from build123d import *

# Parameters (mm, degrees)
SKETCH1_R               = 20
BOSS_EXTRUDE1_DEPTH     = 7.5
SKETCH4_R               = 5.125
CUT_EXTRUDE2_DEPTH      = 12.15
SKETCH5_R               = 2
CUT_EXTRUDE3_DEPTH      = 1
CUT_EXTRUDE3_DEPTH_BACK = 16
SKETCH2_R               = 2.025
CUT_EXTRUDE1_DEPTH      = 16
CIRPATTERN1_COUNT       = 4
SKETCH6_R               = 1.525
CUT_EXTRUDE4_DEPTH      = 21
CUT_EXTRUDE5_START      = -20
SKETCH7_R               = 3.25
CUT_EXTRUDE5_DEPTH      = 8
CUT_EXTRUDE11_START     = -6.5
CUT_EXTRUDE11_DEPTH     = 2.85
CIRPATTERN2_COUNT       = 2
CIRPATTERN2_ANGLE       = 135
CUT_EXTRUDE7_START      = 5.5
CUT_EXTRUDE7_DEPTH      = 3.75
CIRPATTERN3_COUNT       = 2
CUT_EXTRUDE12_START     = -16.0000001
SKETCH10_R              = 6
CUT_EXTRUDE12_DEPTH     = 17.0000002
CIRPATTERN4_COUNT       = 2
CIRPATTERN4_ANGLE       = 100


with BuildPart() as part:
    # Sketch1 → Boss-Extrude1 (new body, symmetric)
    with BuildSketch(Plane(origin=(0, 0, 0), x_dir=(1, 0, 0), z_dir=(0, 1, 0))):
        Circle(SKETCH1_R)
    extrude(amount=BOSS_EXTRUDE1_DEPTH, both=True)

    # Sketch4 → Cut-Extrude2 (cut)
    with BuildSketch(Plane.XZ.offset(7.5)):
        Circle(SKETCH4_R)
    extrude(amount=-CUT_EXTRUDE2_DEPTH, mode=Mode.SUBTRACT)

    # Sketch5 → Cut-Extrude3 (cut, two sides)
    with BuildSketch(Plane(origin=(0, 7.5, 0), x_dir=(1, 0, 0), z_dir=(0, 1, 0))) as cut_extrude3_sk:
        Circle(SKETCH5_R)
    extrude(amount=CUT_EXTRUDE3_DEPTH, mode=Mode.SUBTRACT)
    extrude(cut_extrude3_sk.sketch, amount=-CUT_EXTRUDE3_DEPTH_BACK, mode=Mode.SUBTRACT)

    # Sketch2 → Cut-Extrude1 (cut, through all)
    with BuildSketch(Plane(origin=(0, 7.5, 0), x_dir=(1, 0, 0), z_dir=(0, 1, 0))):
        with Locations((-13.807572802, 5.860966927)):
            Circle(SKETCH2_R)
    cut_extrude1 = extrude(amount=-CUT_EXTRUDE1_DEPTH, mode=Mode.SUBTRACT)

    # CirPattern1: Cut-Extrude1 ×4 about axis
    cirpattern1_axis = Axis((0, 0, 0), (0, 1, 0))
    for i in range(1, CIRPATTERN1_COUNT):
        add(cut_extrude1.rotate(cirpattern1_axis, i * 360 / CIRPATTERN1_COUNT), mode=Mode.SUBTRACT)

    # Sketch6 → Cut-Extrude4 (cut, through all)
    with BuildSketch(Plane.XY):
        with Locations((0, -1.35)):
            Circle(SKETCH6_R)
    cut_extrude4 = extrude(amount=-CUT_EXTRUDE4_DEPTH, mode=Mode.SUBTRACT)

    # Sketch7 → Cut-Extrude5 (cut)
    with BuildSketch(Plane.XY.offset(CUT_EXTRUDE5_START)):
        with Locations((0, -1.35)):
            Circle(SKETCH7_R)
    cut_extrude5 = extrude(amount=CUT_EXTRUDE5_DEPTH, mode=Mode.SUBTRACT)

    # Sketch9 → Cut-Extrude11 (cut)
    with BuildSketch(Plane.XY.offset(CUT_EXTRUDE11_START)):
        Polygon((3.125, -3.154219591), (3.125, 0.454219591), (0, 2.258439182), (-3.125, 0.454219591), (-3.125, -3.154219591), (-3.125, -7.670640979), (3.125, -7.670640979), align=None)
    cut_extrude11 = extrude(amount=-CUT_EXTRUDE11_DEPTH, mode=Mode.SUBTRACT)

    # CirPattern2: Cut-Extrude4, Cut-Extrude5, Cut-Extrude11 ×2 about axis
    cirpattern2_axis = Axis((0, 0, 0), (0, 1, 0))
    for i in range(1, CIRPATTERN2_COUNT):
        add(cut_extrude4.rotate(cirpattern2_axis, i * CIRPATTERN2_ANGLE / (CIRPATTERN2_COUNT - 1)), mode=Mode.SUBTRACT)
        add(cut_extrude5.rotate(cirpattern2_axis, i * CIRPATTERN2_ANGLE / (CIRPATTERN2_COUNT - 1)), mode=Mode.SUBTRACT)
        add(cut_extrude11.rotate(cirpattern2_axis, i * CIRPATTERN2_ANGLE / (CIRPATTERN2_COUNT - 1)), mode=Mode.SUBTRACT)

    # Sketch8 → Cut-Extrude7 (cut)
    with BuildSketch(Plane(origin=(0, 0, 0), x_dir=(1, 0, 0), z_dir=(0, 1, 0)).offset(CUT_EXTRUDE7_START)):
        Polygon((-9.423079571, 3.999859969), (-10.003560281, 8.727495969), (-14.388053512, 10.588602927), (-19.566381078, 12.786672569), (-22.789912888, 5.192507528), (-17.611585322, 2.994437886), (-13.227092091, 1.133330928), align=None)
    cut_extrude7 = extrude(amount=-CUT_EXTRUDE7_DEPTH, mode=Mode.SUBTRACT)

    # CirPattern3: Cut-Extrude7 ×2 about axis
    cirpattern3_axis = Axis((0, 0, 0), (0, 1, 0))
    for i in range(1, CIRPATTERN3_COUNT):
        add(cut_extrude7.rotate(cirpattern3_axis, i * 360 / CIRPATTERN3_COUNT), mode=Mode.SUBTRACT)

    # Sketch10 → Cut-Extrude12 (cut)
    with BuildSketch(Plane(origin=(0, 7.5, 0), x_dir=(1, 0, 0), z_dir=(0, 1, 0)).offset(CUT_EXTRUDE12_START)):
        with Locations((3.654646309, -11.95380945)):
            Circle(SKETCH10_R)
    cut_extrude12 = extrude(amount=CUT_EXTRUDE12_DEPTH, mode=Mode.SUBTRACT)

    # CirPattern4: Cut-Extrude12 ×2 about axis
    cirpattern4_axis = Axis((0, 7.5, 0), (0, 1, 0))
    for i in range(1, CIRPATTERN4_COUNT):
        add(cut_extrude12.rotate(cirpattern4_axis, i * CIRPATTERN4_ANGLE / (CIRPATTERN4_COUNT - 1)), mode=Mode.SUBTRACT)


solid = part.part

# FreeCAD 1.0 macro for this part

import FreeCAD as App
import Part
import Sketcher
from FreeCAD import Vector
Q = App.Units.Quantity


def add_polygon(sketch, points):
    """Adds a closed chain of lines whose ends are joined by coincident constraints."""
    first, n = sketch.GeometryCount, len(points)
    for a, b in zip(points, points[1:] + points[:1]):
        sketch.addGeometry(Part.LineSegment(App.Vector(*a, 0), App.Vector(*b, 0)), False)
    for i in range(n):
        sketch.addConstraint(Sketcher.Constraint("Coincident", first + i, 2, first + (i + 1) % n, 1))

doc = App.newDocument("Part")
body = doc.addObject("PartDesign::Body", "Body")

sketch1 = doc.addObject("Sketcher::SketchObject", "Sketch")
body.addObject(sketch1)
sketch1.AttachmentSupport = (doc.XZ_Plane, [""])
sketch1.MapMode = "FlatFace"
sketch1.addGeometry(Part.Circle(Vector(0, 0, 0), Vector(0, 0, 1), 20), False)
sketch1.addConstraint([
    Sketcher.Constraint("Coincident", 0, 3, -1, 1),
    Sketcher.Constraint("Diameter", 0, Q("40 mm")),
])
pad1 = doc.addObject("PartDesign::Pad", "Pad")
body.addObject(pad1)
pad1.Profile = sketch1
pad1.Length = 15
pad1.Midplane = True

sketch2 = doc.addObject("Sketcher::SketchObject", "Sketch001")
body.addObject(sketch2)
sketch2.AttachmentSupport = (doc.XZ_Plane, [""])
sketch2.MapMode = "FlatFace"
sketch2.AttachmentOffset = App.Placement(Vector(0, 0, 7.5), App.Rotation())
sketch2.addGeometry(Part.Circle(Vector(0, 0, 0), Vector(0, 0, 1), 5.125), False)
sketch2.addConstraint([
    Sketcher.Constraint("Coincident", 0, 3, -1, 1),
    Sketcher.Constraint("Diameter", 0, Q("10.25 mm")),
])
pocket1 = doc.addObject("PartDesign::Pocket", "Pocket")
body.addObject(pocket1)
pocket1.Profile = sketch2
pocket1.Length = 12.15

sketch3 = doc.addObject("Sketcher::SketchObject", "Sketch002")
body.addObject(sketch3)
sketch3.AttachmentSupport = (doc.XZ_Plane, [""])
sketch3.MapMode = "FlatFace"
sketch3.AttachmentOffset = App.Placement(Vector(0, 0, -7.5), App.Rotation())
sketch3.addGeometry(Part.Circle(Vector(0, 0, 0), Vector(0, 0, 1), 2), False)
sketch3.addConstraint([
    Sketcher.Constraint("Coincident", 0, 3, -1, 1),
    Sketcher.Constraint("Diameter", 0, Q("4 mm")),
])
pocket2 = doc.addObject("PartDesign::Pocket", "Pocket001")
body.addObject(pocket2)
pocket2.Profile = sketch3
pocket2.Type = "ThroughAll"
pocket2.Midplane = True

sketch4 = doc.addObject("Sketcher::SketchObject", "Sketch003")
body.addObject(sketch4)
sketch4.AttachmentSupport = (doc.XZ_Plane, [""])
sketch4.MapMode = "FlatFace"
sketch4.AttachmentOffset = App.Placement(Vector(0, 0, -7.5), App.Rotation())
sketch4.addGeometry(Part.Circle(Vector(-13.807573, -5.860967, 0), Vector(0, 0, 1), 2.025), False)
sketch4.addConstraint([
    Sketcher.Constraint("Diameter", 0, Q("4.05 mm")),
    Sketcher.Constraint("DistanceX", 0, 3, -1, 1, Q("13.807573 mm")),
    Sketcher.Constraint("DistanceY", 0, 3, -1, 1, Q("5.860967 mm")),
])
pocket3 = doc.addObject("PartDesign::Pocket", "Pocket002")
body.addObject(pocket3)
pocket3.Profile = sketch4
pocket3.Type = "ThroughAll"
pocket3.Reversed = True
doc.recompute()

polarpattern = doc.addObject("PartDesign::PolarPattern", "PolarPattern")
body.addObject(polarpattern)
polarpattern.Originals = [pocket3]
polarpattern.Axis = (doc.Y_Axis, [""])
polarpattern.Angle = 360
polarpattern.Occurrences = 4
body.Tip = polarpattern

sketch5 = doc.addObject("Sketcher::SketchObject", "Sketch004")
body.addObject(sketch5)
sketch5.AttachmentSupport = (doc.XY_Plane, [""])
sketch5.MapMode = "FlatFace"
sketch5.addGeometry(Part.Circle(Vector(0, -1.35, 0), Vector(0, 0, 1), 1.525), False)
sketch5.addConstraint([
    Sketcher.Constraint("PointOnObject", 0, 3, -2),
    Sketcher.Constraint("Diameter", 0, Q("3.05 mm")),
    Sketcher.Constraint("DistanceY", 0, 3, -1, 1, Q("1.35 mm")),
])
pocket4 = doc.addObject("PartDesign::Pocket", "Pocket003")
body.addObject(pocket4)
pocket4.Profile = sketch5
pocket4.Type = "ThroughAll"

sketch6 = doc.addObject("Sketcher::SketchObject", "Sketch005")
body.addObject(sketch6)
sketch6.AttachmentSupport = (doc.XY_Plane, [""])
sketch6.MapMode = "FlatFace"
sketch6.AttachmentOffset = App.Placement(Vector(0, 0, -20), App.Rotation())
sketch6.addGeometry(Part.Circle(Vector(0, -1.35, 0), Vector(0, 0, 1), 3.25), False)
sketch6.addConstraint([
    Sketcher.Constraint("PointOnObject", 0, 3, -2),
    Sketcher.Constraint("Diameter", 0, Q("6.5 mm")),
    Sketcher.Constraint("DistanceY", 0, 3, -1, 1, Q("1.35 mm")),
])
pocket5 = doc.addObject("PartDesign::Pocket", "Pocket004")
body.addObject(pocket5)
pocket5.Profile = sketch6
pocket5.Length = 8
pocket5.Reversed = True

sketch7 = doc.addObject("Sketcher::SketchObject", "Sketch006")
body.addObject(sketch7)
sketch7.AttachmentSupport = (doc.XY_Plane, [""])
sketch7.MapMode = "FlatFace"
sketch7.AttachmentOffset = App.Placement(Vector(0, 0, -6.5), App.Rotation())
add_polygon(sketch7, [(3.125, 0.45422), (0, 2.258439), (-3.125, 0.45422), (-3.125, -7.670641), (3.125, -7.670641)])
sketch7.addConstraint([
    Sketcher.Constraint("Vertical", 2),
    Sketcher.Constraint("Horizontal", 3),
    Sketcher.Constraint("Vertical", 4),
    Sketcher.Constraint("Symmetric", 1, 2, 4, 2, -2),
    Sketcher.Constraint("PointOnObject", 0, 2, -2),
    Sketcher.Constraint("Angle", 0, Q("150 deg")),
    Sketcher.Constraint("DistanceX", 3, 1, 3, 2, Q("6.25 mm")),
    Sketcher.Constraint("DistanceY", 2, 2, 2, 1, Q("8.124861 mm")),
    Sketcher.Constraint("DistanceY", -1, 1, 0, 2, Q("2.258439 mm")),
])
pocket6 = doc.addObject("PartDesign::Pocket", "Pocket005")
body.addObject(pocket6)
pocket6.Profile = sketch7
pocket6.Length = 2.85
doc.recompute()

polarpattern2 = doc.addObject("PartDesign::PolarPattern", "PolarPattern001")
body.addObject(polarpattern2)
polarpattern2.Originals = [pocket4, pocket5, pocket6]
polarpattern2.Axis = (doc.Y_Axis, [""])
polarpattern2.Angle = 135
polarpattern2.Occurrences = 2
body.Tip = polarpattern2

sketch8 = doc.addObject("Sketcher::SketchObject", "Sketch007")
body.addObject(sketch8)
sketch8.AttachmentSupport = (doc.XZ_Plane, [""])
sketch8.MapMode = "FlatFace"
sketch8.AttachmentOffset = App.Placement(Vector(0, 0, -5.5), App.Rotation())
add_polygon(sketch8, [(-9.42308, -3.99986), (-10.00356, -8.727496), (-14.388054, -10.588603), (-19.566381, -12.786673), (-22.789913, -5.192508), (-17.611585, -2.994438), (-13.227092, -1.133331)])
sketch8.addConstraint([
    Sketcher.Constraint("Parallel", 1, 2),
    Sketcher.Constraint("Perpendicular", 2, 3),
    Sketcher.Constraint("Perpendicular", 3, 4),
    Sketcher.Constraint("Parallel", 4, 5),
    Sketcher.Constraint("Equal", 0, 1),
    Sketcher.Constraint("Equal", 2, 4),
    Sketcher.Constraint("Equal", 1, 5),
    Sketcher.Constraint("Equal", 5, 6),
    Sketcher.Constraint("Angle", 0, Q("-97 deg")),
    Sketcher.Constraint("Angle", 1, Q("-157 deg")),
    Sketcher.Constraint("Distance", 3, Q("8.25 mm")),
    Sketcher.Constraint("Distance", 2, Q("5.62553 mm")),
    Sketcher.Constraint("DistanceX", 0, 2, -1, 1, Q("10.00356 mm")),
    Sketcher.Constraint("DistanceY", 5, 2, -1, 1, Q("1.133331 mm")),
])
pocket7 = doc.addObject("PartDesign::Pocket", "Pocket006")
body.addObject(pocket7)
pocket7.Profile = sketch8
pocket7.Length = 3.75
pocket7.Reversed = True
doc.recompute()

polarpattern3 = doc.addObject("PartDesign::PolarPattern", "PolarPattern002")
body.addObject(polarpattern3)
polarpattern3.Originals = [pocket7]
polarpattern3.Axis = (doc.Y_Axis, [""])
polarpattern3.Angle = 360
polarpattern3.Occurrences = 2
body.Tip = polarpattern3

sketch9 = doc.addObject("Sketcher::SketchObject", "Sketch008")
body.addObject(sketch9)
sketch9.AttachmentSupport = (doc.XZ_Plane, [""])
sketch9.MapMode = "FlatFace"
sketch9.AttachmentOffset = App.Placement(Vector(0, 0, 8.5), App.Rotation())
sketch9.addGeometry(Part.Circle(Vector(3.654646, 11.953809, 0), Vector(0, 0, 1), 6), False)
sketch9.addConstraint([
    Sketcher.Constraint("Diameter", 0, Q("12 mm")),
    Sketcher.Constraint("DistanceY", -1, 1, 0, 3, Q("11.953809 mm")),
    Sketcher.Constraint("DistanceX", -1, 1, 0, 3, Q("3.654646 mm")),
])
pocket8 = doc.addObject("PartDesign::Pocket", "Pocket007")
body.addObject(pocket8)
pocket8.Profile = sketch9
pocket8.Length = 17
doc.recompute()

polarpattern4 = doc.addObject("PartDesign::PolarPattern", "PolarPattern003")
body.addObject(polarpattern4)
polarpattern4.Originals = [pocket8]
polarpattern4.Axis = (doc.Y_Axis, [""])
polarpattern4.Angle = 100
polarpattern4.Occurrences = 2
body.Tip = polarpattern4

doc.recompute()
